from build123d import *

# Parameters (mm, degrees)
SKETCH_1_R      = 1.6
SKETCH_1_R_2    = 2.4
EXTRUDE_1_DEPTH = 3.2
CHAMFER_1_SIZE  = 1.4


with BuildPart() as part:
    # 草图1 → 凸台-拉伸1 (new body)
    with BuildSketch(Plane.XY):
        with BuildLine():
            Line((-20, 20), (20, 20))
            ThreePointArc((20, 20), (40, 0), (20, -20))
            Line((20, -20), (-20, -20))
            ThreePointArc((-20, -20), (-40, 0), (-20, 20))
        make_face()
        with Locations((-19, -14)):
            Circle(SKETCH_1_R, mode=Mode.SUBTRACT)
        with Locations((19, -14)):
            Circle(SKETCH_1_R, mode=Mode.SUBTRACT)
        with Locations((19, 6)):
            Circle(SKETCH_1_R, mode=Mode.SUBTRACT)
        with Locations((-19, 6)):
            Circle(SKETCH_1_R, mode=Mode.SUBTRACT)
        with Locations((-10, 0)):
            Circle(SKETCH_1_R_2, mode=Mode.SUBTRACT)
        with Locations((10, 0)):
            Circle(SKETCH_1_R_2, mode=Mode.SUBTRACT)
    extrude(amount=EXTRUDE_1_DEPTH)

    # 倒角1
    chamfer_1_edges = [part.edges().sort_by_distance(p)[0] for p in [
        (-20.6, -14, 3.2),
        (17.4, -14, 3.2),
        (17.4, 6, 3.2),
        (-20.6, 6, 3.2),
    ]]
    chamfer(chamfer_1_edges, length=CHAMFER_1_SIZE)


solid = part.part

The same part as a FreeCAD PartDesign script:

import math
import FreeCAD as App
import Part
import Sketcher

V = App.Vector


def edges_at(feature, points):
    """Names of the edges that pass closest to the given points."""
    edges = feature.Shape.Edges
    near = lambda p: min(range(len(edges)), key=lambda i: edges[i].distToShape(Part.Vertex(*p))[0])
    return sorted({f"Edge{near(p) + 1}" for p in points})

doc = App.newDocument("Part")
body = doc.addObject("PartDesign::Body", "Body")

# Sketch on XY plane
sketch1 = body.newObject("Sketcher::SketchObject", "Sketch")
sketch1.AttachmentSupport = (doc.getObject("XY_Plane"), [""])
sketch1.MapMode = "FlatFace"
sketch1.addGeometry([
    Part.LineSegment(V(20, 20, 0), V(-20, 20, 0)),  # 0
    Part.ArcOfCircle(Part.Circle(V(-20, 0, 0), V(0, 0, 1), 20), math.radians(90), math.radians(270)),  # 1
    Part.LineSegment(V(-20, -20, 0), V(20, -20, 0)),  # 2
    Part.ArcOfCircle(Part.Circle(V(20, 0, 0), V(0, 0, 1), 20), math.radians(-90), math.radians(90)),  # 3
    Part.Circle(V(19, -14, 0), V(0, 0, 1), 1.6),  # 4
    Part.Circle(V(-19, -14, 0), V(0, 0, 1), 1.6),  # 5
    Part.Circle(V(10, 0, 0), V(0, 0, 1), 2.4),  # 6
    Part.Circle(V(19, 6, 0), V(0, 0, 1), 1.6),  # 7
    Part.Circle(V(-10, 0, 0), V(0, 0, 1), 2.4),  # 8
    Part.Circle(V(-19, 6, 0), V(0, 0, 1), 1.6),  # 9
], False)
sketch1.addConstraint([
    Sketcher.Constraint("Tangent", 0, 2, 1, 1),
    Sketcher.Constraint("Tangent", 1, 2, 2, 1),
    Sketcher.Constraint("Tangent", 2, 2, 3, 1),
    Sketcher.Constraint("Tangent", 3, 2, 0, 1),
    Sketcher.Constraint("Horizontal", 0),
    Sketcher.Constraint("Horizontal", 2),
    Sketcher.Constraint("Equal", 4, 5),
    Sketcher.Constraint("Equal", 5, 7),
    Sketcher.Constraint("Equal", 6, 8),
    Sketcher.Constraint("Equal", 7, 9),
    Sketcher.Constraint("Symmetric", 1, 3, 3, 3, -1, 1),
    Sketcher.Constraint("Symmetric", 6, 3, 8, 3, -1, 1),
    Sketcher.Constraint("Symmetric", 4, 3, 5, 3, -2),
    Sketcher.Constraint("Symmetric", 7, 3, 9, 3, -2),
    Sketcher.Constraint("PointOnObject", 6, 3, -1),
    Sketcher.Constraint("Vertical", 4, 3, 7, 3),
    Sketcher.Constraint("Radius", 1, 20.0),
    Sketcher.Constraint("Diameter", 4, 3.2),
    Sketcher.Constraint("Diameter", 6, 4.8),
    Sketcher.Constraint("DistanceX", 0, 2, 0, 1, 40.0),
    Sketcher.Constraint("DistanceX", -1, 1, 4, 3, 19.0),
    Sketcher.Constraint("DistanceY", 4, 3, -1, 1, 14.0),
    Sketcher.Constraint("DistanceX", -1, 1, 6, 3, 10.0),
    Sketcher.Constraint("DistanceY", -1, 1, 7, 3, 6.0),
])
pad1 = body.newObject("PartDesign::Pad", "Pad")
pad1.Profile = sketch1
pad1.Length = 3.2
doc.recompute()

chamfer = body.newObject("PartDesign::Chamfer", "Chamfer")
chamfer.Base = (pad1, edges_at(pad1, [
    (-20.6, -14, 3.2),
    (17.4, -14, 3.2),
    (17.4, 6, 3.2),
    (-20.6, 6, 3.2),
]))
chamfer.Size = 1.4

doc.recompute()
